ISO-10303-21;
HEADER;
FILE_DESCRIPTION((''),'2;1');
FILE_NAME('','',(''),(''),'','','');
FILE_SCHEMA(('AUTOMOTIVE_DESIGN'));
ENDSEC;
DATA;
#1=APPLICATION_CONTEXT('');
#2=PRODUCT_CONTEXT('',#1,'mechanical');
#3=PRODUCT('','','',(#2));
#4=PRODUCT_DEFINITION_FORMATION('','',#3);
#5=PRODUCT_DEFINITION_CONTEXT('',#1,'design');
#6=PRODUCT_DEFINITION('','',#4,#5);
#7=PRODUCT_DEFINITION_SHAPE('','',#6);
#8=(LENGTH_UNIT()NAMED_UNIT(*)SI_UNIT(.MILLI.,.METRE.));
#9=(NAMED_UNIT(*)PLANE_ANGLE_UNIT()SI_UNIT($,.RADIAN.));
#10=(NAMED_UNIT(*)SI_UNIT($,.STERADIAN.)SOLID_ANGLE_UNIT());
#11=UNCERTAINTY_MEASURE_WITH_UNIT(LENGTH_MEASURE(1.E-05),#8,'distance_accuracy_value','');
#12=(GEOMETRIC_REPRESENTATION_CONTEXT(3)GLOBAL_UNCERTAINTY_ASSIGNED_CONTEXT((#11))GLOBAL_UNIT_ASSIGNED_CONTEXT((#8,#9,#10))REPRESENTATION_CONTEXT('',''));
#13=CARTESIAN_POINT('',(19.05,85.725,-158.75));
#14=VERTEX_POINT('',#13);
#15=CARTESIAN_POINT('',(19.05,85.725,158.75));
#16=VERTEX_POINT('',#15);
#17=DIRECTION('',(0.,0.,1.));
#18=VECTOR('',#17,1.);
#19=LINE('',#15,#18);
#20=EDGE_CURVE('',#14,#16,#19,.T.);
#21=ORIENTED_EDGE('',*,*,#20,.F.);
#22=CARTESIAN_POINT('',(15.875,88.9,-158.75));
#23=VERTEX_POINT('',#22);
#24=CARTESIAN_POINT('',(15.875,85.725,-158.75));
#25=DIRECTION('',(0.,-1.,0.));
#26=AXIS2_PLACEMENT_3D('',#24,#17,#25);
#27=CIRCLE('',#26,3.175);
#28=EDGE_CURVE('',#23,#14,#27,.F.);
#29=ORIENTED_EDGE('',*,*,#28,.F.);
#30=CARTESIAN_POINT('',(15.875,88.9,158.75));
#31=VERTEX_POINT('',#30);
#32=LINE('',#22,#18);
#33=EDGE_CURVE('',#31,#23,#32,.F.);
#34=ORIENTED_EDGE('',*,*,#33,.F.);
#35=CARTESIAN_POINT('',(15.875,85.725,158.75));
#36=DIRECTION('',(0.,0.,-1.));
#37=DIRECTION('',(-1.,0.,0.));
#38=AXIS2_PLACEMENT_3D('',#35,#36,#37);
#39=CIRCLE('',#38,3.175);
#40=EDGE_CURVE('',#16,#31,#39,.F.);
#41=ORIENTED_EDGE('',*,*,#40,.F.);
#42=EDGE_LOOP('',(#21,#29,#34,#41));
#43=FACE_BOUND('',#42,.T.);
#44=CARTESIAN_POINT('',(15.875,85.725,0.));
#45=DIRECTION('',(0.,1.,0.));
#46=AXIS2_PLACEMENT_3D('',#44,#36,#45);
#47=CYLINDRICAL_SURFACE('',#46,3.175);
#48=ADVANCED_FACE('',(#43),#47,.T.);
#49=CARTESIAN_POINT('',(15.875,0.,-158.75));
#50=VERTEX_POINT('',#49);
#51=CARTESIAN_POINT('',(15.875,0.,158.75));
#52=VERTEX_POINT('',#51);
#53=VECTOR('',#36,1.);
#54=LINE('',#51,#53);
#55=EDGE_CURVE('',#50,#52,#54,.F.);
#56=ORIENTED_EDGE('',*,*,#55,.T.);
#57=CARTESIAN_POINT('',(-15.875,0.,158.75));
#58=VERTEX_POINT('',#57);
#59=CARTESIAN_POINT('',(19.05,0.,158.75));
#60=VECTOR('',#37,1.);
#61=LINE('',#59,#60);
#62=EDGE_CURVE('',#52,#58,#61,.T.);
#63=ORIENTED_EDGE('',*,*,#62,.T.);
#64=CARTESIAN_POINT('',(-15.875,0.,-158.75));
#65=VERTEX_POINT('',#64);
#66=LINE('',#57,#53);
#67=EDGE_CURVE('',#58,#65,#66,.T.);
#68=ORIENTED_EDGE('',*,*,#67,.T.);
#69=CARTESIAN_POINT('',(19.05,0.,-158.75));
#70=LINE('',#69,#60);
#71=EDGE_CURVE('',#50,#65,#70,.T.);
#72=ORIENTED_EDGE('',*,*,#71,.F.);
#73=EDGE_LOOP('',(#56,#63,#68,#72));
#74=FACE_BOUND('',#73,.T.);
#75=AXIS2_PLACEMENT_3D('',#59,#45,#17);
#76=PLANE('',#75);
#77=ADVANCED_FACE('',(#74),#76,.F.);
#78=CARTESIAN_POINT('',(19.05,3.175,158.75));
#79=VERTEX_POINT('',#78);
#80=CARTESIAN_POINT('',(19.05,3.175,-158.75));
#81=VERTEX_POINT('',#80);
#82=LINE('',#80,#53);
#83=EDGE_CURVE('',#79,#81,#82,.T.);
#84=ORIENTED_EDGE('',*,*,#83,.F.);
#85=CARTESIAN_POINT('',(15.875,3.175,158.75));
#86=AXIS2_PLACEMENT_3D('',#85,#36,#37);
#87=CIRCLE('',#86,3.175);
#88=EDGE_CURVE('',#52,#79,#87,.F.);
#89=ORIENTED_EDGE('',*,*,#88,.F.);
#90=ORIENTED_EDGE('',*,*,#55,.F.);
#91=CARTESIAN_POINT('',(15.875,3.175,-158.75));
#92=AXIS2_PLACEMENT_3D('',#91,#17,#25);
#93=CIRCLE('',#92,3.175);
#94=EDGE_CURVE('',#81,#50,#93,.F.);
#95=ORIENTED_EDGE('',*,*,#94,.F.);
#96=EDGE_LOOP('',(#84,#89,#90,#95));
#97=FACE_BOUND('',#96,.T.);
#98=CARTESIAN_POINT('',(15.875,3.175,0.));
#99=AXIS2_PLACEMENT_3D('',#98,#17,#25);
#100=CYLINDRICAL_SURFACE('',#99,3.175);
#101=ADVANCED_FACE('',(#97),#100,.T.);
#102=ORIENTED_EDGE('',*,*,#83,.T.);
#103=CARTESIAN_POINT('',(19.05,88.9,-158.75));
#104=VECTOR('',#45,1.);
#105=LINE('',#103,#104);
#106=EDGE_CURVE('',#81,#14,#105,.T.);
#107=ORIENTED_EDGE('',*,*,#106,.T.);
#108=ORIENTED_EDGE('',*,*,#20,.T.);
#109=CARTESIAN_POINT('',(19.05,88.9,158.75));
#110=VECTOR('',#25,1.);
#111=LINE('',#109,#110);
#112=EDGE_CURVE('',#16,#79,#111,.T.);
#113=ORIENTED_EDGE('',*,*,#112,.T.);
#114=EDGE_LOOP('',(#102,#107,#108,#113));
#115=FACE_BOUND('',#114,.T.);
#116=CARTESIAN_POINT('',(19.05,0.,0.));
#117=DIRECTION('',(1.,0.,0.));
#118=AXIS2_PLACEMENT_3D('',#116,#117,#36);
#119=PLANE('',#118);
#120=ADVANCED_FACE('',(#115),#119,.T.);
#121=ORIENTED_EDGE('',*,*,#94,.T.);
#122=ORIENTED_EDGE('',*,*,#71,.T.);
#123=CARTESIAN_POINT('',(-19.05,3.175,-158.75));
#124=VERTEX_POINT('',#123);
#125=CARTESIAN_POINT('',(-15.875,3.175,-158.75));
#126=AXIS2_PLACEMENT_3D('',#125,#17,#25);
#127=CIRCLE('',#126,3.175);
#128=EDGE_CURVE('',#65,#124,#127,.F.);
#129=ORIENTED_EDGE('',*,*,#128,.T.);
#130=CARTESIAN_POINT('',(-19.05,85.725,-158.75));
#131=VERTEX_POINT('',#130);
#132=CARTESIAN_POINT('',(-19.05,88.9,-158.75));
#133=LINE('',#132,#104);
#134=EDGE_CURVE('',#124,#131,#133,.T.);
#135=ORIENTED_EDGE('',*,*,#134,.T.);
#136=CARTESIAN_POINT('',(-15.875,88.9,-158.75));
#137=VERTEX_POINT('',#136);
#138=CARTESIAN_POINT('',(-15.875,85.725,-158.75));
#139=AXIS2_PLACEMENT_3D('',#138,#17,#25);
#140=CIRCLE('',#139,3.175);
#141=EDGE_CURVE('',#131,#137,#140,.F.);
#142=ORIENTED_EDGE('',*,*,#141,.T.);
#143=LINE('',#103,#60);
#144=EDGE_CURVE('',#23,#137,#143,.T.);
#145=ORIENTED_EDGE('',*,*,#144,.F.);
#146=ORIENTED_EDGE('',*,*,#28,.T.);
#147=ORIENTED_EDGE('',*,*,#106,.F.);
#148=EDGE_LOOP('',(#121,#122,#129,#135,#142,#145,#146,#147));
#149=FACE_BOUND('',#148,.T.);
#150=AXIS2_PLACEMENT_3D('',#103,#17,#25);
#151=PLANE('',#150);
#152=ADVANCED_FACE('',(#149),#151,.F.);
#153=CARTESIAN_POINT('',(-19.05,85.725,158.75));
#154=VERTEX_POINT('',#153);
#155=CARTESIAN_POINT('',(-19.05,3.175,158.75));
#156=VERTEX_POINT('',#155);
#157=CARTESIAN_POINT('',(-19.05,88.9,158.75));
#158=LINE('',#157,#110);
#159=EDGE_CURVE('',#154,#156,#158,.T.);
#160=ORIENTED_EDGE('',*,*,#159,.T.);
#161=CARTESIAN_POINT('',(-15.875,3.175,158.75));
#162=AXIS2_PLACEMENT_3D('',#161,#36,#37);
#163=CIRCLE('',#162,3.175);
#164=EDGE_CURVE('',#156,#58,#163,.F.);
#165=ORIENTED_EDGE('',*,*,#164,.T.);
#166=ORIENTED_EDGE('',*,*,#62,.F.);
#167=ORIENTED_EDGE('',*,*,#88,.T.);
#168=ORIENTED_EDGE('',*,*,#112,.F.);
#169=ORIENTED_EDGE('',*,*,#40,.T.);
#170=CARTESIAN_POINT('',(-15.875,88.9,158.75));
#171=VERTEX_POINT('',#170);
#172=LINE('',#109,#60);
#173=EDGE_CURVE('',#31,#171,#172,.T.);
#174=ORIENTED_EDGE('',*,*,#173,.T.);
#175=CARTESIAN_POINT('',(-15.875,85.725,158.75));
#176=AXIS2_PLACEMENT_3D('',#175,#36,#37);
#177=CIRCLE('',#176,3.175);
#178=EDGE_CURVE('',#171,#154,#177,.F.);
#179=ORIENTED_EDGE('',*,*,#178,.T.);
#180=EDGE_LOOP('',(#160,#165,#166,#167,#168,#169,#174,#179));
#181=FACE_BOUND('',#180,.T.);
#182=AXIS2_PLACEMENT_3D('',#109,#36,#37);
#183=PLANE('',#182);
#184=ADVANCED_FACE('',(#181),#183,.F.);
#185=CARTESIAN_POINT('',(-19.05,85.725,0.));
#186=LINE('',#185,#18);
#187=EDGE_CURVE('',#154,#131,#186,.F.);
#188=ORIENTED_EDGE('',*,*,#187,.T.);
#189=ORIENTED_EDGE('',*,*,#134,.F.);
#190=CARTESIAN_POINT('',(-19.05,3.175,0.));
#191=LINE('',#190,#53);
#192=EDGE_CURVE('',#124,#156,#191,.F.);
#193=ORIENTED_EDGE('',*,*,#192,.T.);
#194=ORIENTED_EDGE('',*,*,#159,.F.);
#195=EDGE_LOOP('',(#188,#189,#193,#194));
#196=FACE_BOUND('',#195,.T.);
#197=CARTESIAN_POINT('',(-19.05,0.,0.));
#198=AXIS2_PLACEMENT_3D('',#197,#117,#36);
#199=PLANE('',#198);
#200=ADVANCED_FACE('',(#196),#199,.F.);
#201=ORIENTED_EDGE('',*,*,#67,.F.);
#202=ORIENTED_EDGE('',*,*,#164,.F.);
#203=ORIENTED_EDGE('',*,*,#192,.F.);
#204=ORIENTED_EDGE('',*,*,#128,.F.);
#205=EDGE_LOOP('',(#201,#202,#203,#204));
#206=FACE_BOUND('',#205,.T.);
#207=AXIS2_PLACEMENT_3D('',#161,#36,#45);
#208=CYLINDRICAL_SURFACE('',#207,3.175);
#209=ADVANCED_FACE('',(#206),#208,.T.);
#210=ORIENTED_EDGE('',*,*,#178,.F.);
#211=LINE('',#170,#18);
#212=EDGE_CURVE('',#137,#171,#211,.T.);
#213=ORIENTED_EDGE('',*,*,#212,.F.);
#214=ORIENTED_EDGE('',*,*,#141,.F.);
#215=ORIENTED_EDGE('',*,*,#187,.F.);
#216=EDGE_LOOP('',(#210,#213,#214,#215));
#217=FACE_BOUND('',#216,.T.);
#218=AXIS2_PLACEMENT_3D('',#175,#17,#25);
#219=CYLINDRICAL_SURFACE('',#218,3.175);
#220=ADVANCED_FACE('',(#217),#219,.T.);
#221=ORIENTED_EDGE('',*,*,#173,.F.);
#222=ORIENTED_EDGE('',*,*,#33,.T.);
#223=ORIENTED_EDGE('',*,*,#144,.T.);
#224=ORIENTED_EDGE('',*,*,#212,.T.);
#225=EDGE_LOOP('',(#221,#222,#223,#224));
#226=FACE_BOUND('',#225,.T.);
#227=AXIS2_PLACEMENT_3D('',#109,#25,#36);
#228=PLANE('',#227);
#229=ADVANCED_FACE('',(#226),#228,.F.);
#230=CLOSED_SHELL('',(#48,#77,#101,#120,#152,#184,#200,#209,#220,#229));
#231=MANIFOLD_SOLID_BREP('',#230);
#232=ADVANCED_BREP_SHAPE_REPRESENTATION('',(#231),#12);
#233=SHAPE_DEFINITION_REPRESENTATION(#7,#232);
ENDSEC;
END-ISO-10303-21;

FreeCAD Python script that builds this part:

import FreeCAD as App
import Part
import Sketcher

V = App.Vector
Q = App.Units.Quantity


def edges_at(feature, points):
    """Names of the edges that pass closest to the given points."""
    edges = feature.Shape.Edges
    near = lambda p: min(range(len(edges)), key=lambda i: edges[i].distToShape(Part.Vertex(*p))[0])
    return sorted({f"Edge{near(p) + 1}" for p in points})

doc = App.newDocument("Part")
body = doc.addObject("PartDesign::Body", "Body")

sketch1 = body.newObject("Sketcher::SketchObject", "Sketch")
sketch1.AttachmentSupport = (doc.getObject("YZ_Plane"), [""])
sketch1.MapMode = "FlatFace"
sketch1.addGeometry([
    Part.LineSegment(V(89, 159, 0), V(0, 159, 0)),
    Part.LineSegment(V(0, 159, 0), V(0, -159, 0)),
    Part.LineSegment(V(0, -159, 0), V(89, -159, 0)),
    Part.LineSegment(V(89, -159, 0), V(89, 159, 0)),
], False)
sketch1.addConstraint([
    Sketcher.Constraint("Coincident", 0, 2, 1, 1),
    Sketcher.Constraint("Coincident", 1, 2, 2, 1),
    Sketcher.Constraint("Coincident", 2, 2, 3, 1),
    Sketcher.Constraint("Coincident", 3, 2, 0, 1),
    Sketcher.Constraint("Horizontal", 0),
    Sketcher.Constraint("Vertical", 1),
    Sketcher.Constraint("Horizontal", 2),
    Sketcher.Constraint("Vertical", 3),
    Sketcher.Constraint("Symmetric", 0, 2, 1, 2, -1, 1),
    Sketcher.Constraint("DistanceX", 0, 2, 0, 1, Q("3.5 in")),
    Sketcher.Constraint("DistanceY", 1, 2, 1, 1, Q("12.5 in")),
])
pad1 = body.newObject("PartDesign::Pad", "Pad")
pad1.Profile = sketch1
pad1.Length = Q("1.5 in")
pad1.Midplane = True
doc.recompute()

fillet = body.newObject("PartDesign::Fillet", "Fillet")
fillet.Base = (pad1, edges_at(pad1, [
    (19.05, 88.9, 0),
    (-19.05, 88.9, 0),
    (-19.05, 0, 0),
    (19.05, 0, 0),
]))
fillet.Radius = Q("0.125 in")

doc.recompute()
